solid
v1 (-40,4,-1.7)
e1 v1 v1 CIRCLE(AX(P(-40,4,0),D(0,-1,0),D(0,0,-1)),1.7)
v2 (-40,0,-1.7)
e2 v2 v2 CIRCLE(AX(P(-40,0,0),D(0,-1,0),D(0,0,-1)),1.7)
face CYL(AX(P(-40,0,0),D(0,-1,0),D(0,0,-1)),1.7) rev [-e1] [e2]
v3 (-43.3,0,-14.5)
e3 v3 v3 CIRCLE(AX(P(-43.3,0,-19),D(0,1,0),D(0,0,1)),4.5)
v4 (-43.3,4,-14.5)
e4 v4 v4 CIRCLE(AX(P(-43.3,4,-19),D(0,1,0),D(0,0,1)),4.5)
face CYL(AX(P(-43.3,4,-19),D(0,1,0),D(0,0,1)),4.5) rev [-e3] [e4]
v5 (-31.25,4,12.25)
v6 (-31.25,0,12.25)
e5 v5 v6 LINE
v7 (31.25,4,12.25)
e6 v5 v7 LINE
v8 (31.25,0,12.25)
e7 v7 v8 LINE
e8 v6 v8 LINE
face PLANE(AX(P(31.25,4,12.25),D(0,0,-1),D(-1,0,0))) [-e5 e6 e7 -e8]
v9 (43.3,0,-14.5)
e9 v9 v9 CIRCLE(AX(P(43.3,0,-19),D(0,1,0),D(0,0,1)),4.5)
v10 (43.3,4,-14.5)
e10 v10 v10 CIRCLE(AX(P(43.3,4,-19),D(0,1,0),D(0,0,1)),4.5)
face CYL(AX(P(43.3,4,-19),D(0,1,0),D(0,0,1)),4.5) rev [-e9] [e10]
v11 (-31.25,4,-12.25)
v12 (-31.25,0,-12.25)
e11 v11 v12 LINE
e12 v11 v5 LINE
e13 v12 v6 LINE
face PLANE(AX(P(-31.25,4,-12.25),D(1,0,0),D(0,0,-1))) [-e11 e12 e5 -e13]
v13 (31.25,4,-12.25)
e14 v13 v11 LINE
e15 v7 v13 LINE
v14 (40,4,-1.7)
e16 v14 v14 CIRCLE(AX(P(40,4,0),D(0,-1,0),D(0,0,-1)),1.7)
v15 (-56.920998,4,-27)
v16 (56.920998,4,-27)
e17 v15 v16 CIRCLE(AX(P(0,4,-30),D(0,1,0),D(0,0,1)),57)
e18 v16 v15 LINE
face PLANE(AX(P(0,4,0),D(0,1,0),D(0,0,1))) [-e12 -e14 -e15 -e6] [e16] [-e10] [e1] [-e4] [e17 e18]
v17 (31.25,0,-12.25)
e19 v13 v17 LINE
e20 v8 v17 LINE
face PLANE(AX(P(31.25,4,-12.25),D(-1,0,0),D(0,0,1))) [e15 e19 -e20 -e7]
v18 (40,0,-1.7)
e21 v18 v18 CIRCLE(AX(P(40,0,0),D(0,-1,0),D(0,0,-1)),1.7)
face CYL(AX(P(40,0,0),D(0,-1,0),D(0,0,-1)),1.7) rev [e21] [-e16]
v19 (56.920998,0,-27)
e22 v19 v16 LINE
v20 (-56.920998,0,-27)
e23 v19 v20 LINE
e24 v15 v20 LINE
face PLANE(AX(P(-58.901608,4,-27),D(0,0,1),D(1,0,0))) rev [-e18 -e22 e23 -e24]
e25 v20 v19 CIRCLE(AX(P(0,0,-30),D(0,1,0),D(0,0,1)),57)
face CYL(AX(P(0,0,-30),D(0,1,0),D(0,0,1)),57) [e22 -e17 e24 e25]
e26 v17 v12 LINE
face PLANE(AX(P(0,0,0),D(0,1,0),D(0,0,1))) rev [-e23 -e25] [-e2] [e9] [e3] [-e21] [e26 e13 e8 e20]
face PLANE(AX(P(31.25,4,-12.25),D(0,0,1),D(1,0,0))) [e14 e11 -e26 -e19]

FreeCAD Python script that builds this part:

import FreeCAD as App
import Part
import Sketcher
from FreeCAD import Vector
Q = App.Units.Quantity

doc = App.newDocument("Part")
body = doc.addObject("PartDesign::Body", "Body")

sketch1 = doc.addObject("Sketcher::SketchObject", "Sketch")
body.addObject(sketch1)
sketch1.AttachmentSupport = (doc.XZ_Plane, [""])
sketch1.MapMode = "FlatFace"
sketch1.addGeometry(Part.LineSegment(Vector(-58.901608, -27, 0), Vector(-58.901608, 41.694422, 0)), False)
sketch1.addGeometry(Part.LineSegment(Vector(-58.901608, 41.694422, 0), Vector(59.427941, 41.694422, 0)), False)
sketch1.addGeometry(Part.LineSegment(Vector(59.427941, 41.694422, 0), Vector(59.427941, -27, 0)), False)
sketch1.addGeometry(Part.LineSegment(Vector(59.427941, -27, 0), Vector(-58.901608, -27, 0)), False)
sketch1.addGeometry(Part.LineSegment(Vector(-31.25, 12.25, 0), Vector(-31.25, -12.25, 0)), False)
sketch1.addGeometry(Part.LineSegment(Vector(-31.25, -12.25, 0), Vector(31.25, -12.25, 0)), False)
sketch1.addGeometry(Part.LineSegment(Vector(31.25, -12.25, 0), Vector(31.25, 12.25, 0)), False)
sketch1.addGeometry(Part.LineSegment(Vector(31.25, 12.25, 0), Vector(-31.25, 12.25, 0)), False)
sketch1.addConstraint(Sketcher.Constraint("Coincident", 0, 2, 1, 1))
sketch1.addConstraint(Sketcher.Constraint("Coincident", 1, 2, 2, 1))
sketch1.addConstraint(Sketcher.Constraint("Coincident", 2, 2, 3, 1))
sketch1.addConstraint(Sketcher.Constraint("Coincident", 3, 2, 0, 1))
sketch1.addConstraint(Sketcher.Constraint("Coincident", 4, 2, 5, 1))
sketch1.addConstraint(Sketcher.Constraint("Coincident", 5, 2, 6, 1))
sketch1.addConstraint(Sketcher.Constraint("Coincident", 6, 2, 7, 1))
sketch1.addConstraint(Sketcher.Constraint("Coincident", 7, 2, 4, 1))
sketch1.addConstraint(Sketcher.Constraint("Vertical", 0))
sketch1.addConstraint(Sketcher.Constraint("Horizontal", 1))
sketch1.addConstraint(Sketcher.Constraint("Vertical", 2))
sketch1.addConstraint(Sketcher.Constraint("Horizontal", 3))
sketch1.addConstraint(Sketcher.Constraint("Vertical", 4))
sketch1.addConstraint(Sketcher.Constraint("Horizontal", 5))
sketch1.addConstraint(Sketcher.Constraint("Vertical", 6))
sketch1.addConstraint(Sketcher.Constraint("Horizontal", 7))
sketch1.addConstraint(Sketcher.Constraint("Symmetric", 4, 2, 6, 2, -1, 1))
sketch1.addConstraint(Sketcher.Constraint("DistanceX", 5, 1, 5, 2, Q("62.5 mm")))
sketch1.addConstraint(Sketcher.Constraint("DistanceY", 4, 2, 4, 1, Q("24.5 mm")))
sketch1.addConstraint(Sketcher.Constraint("DistanceY", 2, 2, -1, 1, Q("27 mm")))
sketch1.addConstraint(Sketcher.Constraint("DistanceX", 1, 1, 1, 2, Q("118.329549 mm")))
sketch1.addConstraint(Sketcher.Constraint("DistanceY", 0, 1, 0, 2, Q("68.694422 mm")))
sketch1.addConstraint(Sketcher.Constraint("DistanceX", -1, 1, 1, 2, Q("59.427941 mm")))
pad1 = doc.addObject("PartDesign::Pad", "Pad")
body.addObject(pad1)
pad1.Profile = sketch1
pad1.Length = 4
pad1.Reversed = True

sketch2 = doc.addObject("Sketcher::SketchObject", "Sketch001")
body.addObject(sketch2)
sketch2.AttachmentSupport = (doc.XZ_Plane, [""])
sketch2.MapMode = "FlatFace"
sketch2.AttachmentOffset = App.Placement(Vector(0, 0, -4), App.Rotation())
sketch2.addGeometry(Part.Circle(Vector(-43.3, -19, 0), Vector(0, 0, 1), 4.5), False)
sketch2.addGeometry(Part.Circle(Vector(43.3, -19, 0), Vector(0, 0, 1), 4.5), False)
sketch2.addConstraint(Sketcher.Constraint("Equal", 0, 1))
sketch2.addConstraint(Sketcher.Constraint("Symmetric", 0, 3, 1, 3, -2))
sketch2.addConstraint(Sketcher.Constraint("Diameter", 0, Q("9 mm")))
sketch2.addConstraint(Sketcher.Constraint("DistanceY", 0, 3, -1, 1, Q("19 mm")))
sketch2.addConstraint(Sketcher.Constraint("DistanceX", 0, 3, -1, 1, Q("43.3 mm")))
doc.recompute()
hole = doc.addObject("PartDesign::Hole", "Hole")
body.addObject(hole)
hole.Profile = sketch2
hole.ThreadType = "None"
hole.Diameter = 9
hole.DepthType = "ThroughAll"
hole.Reversed = True

sketch3 = doc.addObject("Sketcher::SketchObject", "Sketch002")
body.addObject(sketch3)
sketch3.AttachmentSupport = (doc.XZ_Plane, [""])
sketch3.MapMode = "FlatFace"
sketch3.AttachmentOffset = App.Placement(Vector(0, 0, -4), App.Rotation())
sketch3.addGeometry(Part.Circle(Vector(0, -30, 0), Vector(0, 0, 1), 132), False)
sketch3.addGeometry(Part.Circle(Vector(0, -30, 0), Vector(0, 0, 1), 57), False)
sketch3.addConstraint(Sketcher.Constraint("Coincident", 1, 3, 0, 3))
sketch3.addConstraint(Sketcher.Constraint("PointOnObject", 0, 3, -2))
sketch3.addConstraint(Sketcher.Constraint("Diameter", 0, Q("264 mm")))
sketch3.addConstraint(Sketcher.Constraint("Diameter", 1, Q("114 mm")))
sketch3.addConstraint(Sketcher.Constraint("DistanceY", 0, 3, -1, 1, Q("30 mm")))
pocket1 = doc.addObject("PartDesign::Pocket", "Pocket")
body.addObject(pocket1)
pocket1.Profile = sketch3
pocket1.Type = "ThroughAll"
pocket1.Reversed = True

sketch4 = doc.addObject("Sketcher::SketchObject", "Sketch003")
body.addObject(sketch4)
sketch4.AttachmentSupport = (doc.XZ_Plane, [""])
sketch4.MapMode = "FlatFace"
sketch4.addGeometry(Part.Circle(Vector(40, 0, 0), Vector(0, 0, 1), 1.7), False)
sketch4.addGeometry(Part.Circle(Vector(-40, 0, 0), Vector(0, 0, 1), 1.7), False)
sketch4.addConstraint(Sketcher.Constraint("Equal", 0, 1))
sketch4.addConstraint(Sketcher.Constraint("Symmetric", 0, 3, 1, 3, -1, 1))
sketch4.addConstraint(Sketcher.Constraint("PointOnObject", 0, 3, -1))
sketch4.addConstraint(Sketcher.Constraint("Diameter", 0, Q("3.4 mm")))
sketch4.addConstraint(Sketcher.Constraint("DistanceX", -1, 1, 0, 3, Q("40 mm")))
doc.recompute()
hole2 = doc.addObject("PartDesign::Hole", "Hole001")
body.addObject(hole2)
hole2.Profile = sketch4
hole2.ThreadType = "None"
hole2.Diameter = 3.4
hole2.DepthType = "ThroughAll"

doc.recompute()
